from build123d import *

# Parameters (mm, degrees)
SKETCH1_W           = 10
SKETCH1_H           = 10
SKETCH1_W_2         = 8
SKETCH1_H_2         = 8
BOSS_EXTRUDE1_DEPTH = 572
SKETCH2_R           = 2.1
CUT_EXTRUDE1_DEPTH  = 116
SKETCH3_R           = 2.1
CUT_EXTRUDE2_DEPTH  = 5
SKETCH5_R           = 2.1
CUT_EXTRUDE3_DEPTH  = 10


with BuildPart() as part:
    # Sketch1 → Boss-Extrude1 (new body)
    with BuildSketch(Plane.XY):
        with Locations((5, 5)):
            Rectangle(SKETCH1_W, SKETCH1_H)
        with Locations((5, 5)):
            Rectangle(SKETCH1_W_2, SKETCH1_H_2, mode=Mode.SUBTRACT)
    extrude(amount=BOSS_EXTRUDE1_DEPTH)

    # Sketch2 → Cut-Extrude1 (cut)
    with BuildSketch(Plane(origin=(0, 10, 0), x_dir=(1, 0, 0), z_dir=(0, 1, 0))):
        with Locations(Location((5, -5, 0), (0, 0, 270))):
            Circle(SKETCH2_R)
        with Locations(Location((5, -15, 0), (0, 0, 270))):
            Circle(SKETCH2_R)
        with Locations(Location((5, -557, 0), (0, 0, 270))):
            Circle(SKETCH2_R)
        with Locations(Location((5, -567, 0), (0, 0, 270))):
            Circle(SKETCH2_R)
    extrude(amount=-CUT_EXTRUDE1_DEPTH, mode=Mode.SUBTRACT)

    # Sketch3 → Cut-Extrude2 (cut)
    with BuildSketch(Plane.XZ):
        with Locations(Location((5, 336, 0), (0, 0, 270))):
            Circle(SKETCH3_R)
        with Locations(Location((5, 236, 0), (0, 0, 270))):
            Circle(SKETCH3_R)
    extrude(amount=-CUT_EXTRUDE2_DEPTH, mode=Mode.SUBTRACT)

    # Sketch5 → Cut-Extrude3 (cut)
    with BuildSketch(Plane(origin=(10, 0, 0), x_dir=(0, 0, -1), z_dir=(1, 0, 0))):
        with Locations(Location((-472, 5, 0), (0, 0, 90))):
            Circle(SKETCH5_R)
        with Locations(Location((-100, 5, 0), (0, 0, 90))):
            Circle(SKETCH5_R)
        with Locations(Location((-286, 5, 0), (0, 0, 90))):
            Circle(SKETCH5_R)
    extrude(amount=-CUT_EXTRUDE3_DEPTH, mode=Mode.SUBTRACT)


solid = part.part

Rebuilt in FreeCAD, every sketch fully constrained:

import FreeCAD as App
import Part
import Sketcher

V = App.Vector


def add_polygon(sketch, points):
    """Adds a closed chain of lines whose ends are joined by coincident constraints."""
    first, n = sketch.GeometryCount, len(points)
    for a, b in zip(points, points[1:] + points[:1]):
        sketch.addGeometry(Part.LineSegment(App.Vector(*a, 0), App.Vector(*b, 0)), False)
    for i in range(n):
        sketch.addConstraint(Sketcher.Constraint("Coincident", first + i, 2, first + (i + 1) % n, 1))

doc = App.newDocument("Part")
params = doc.addObject("Spreadsheet::Sheet", "Params")
for row, (alias, value) in enumerate([
    ("sketch1_width", "10 mm"),
    ("sketch1_width2", "8 mm"),
    ("pad1_length", "572 mm"),
    ("sketch2_diameter", "4.2 mm"),
    ("pocket1_length", "116 mm"),
    ("sketch3_diameter", "4.2 mm"),
    ("pocket2_length", "5 mm"),
    ("sketch4_diameter", "4.2 mm"),
    ("pocket3_length", "10 mm"),
], start=1):
    params.set(f"A{row}", alias)
    params.set(f"B{row}", "=" + value)
    params.setAlias(f"B{row}", alias)

body = doc.addObject("PartDesign::Body", "Body")

# Sketch on XY plane
sketch1 = doc.addObject("Sketcher::SketchObject", "Sketch")
body.addObject(sketch1)
sketch1.AttachmentSupport = (doc.XY_Plane, [""])
sketch1.MapMode = "FlatFace"
add_polygon(sketch1, [(0, 10), (0, 0), (10, 0), (10, 10)])  # lines 0-3
add_polygon(sketch1, [(9, 1), (1, 1), (1, 9), (9, 9)])  # lines 4-7
sketch1.addConstraint([
    Sketcher.Constraint("Vertical", 0),
    Sketcher.Constraint("Horizontal", 1),
    Sketcher.Constraint("Vertical", 2),
    Sketcher.Constraint("Horizontal", 3),
    Sketcher.Constraint("Horizontal", 4),
    Sketcher.Constraint("Vertical", 5),
    Sketcher.Constraint("Horizontal", 6),
    Sketcher.Constraint("Vertical", 7),
    Sketcher.Constraint("Coincident", 0, 2, -1, 1),
    Sketcher.Constraint("Equal", 3, 0),
    Sketcher.Constraint("Equal", 6, 5),
    Sketcher.Constraint("DistanceX", 1, 1, 1, 2, 10.0),
    Sketcher.Constraint("DistanceX", 4, 2, 4, 1, 8.0),
    Sketcher.Constraint("DistanceX", -1, 1, 4, 2, 1.0),
    Sketcher.Constraint("DistanceY", -1, 1, 4, 2, 1.0),
])
sketch1.setExpression("Constraints[19]", "Params.sketch1_width")
sketch1.setExpression("Constraints[20]", "Params.sketch1_width2")
pad1 = doc.addObject("PartDesign::Pad", "Pad")
body.addObject(pad1)
pad1.Profile = sketch1
pad1.setExpression("Length", "Params.pad1_length")

# Sketch on XZ plane
sketch2 = doc.addObject("Sketcher::SketchObject", "Sketch001")
body.addObject(sketch2)
sketch2.AttachmentSupport = (doc.XZ_Plane, [""])
sketch2.MapMode = "FlatFace"
sketch2.AttachmentOffset = App.Placement(V(0, 0, -10), App.Rotation())
sketch2.addGeometry([
    Part.Circle(V(5, 5, 0), V(0, 0, 1), 2.1),
    Part.Circle(V(5, 15, 0), V(0, 0, 1), 2.1),
    Part.Circle(V(5, 557, 0), V(0, 0, 1), 2.1),
    Part.Circle(V(5, 567, 0), V(0, 0, 1), 2.1),
], False)
sketch2.addConstraint([
    Sketcher.Constraint("Equal", 0, 1),
    Sketcher.Constraint("Equal", 1, 2),
    Sketcher.Constraint("Equal", 2, 3),
    Sketcher.Constraint("Vertical", 0, 3, 1, 3),
    Sketcher.Constraint("Vertical", 1, 3, 2, 3),
    Sketcher.Constraint("Vertical", 2, 3, 3, 3),
    Sketcher.Constraint("Diameter", 0, 4.2),
    Sketcher.Constraint("DistanceX", -1, 1, 0, 3, 5.0),
    Sketcher.Constraint("DistanceY", -1, 1, 0, 3, 5.0),
    Sketcher.Constraint("DistanceY", -1, 1, 1, 3, 15.0),
    Sketcher.Constraint("DistanceY", -1, 1, 2, 3, 557.0),
    Sketcher.Constraint("DistanceY", -1, 1, 3, 3, 567.0),
])
sketch2.setExpression("Constraints[6]", "Params.sketch2_diameter")
pocket1 = doc.addObject("PartDesign::Pocket", "Pocket")
body.addObject(pocket1)
pocket1.Profile = sketch2
pocket1.setExpression("Length", "Params.pocket1_length")
pocket1.Reversed = True

# Sketch on XZ plane
sketch3 = doc.addObject("Sketcher::SketchObject", "Sketch002")
body.addObject(sketch3)
sketch3.AttachmentSupport = (doc.XZ_Plane, [""])
sketch3.MapMode = "FlatFace"
sketch3.addGeometry([
    Part.Circle(V(5, 336, 0), V(0, 0, 1), 2.1),
    Part.Circle(V(5, 236, 0), V(0, 0, 1), 2.1),
], False)
sketch3.addConstraint([
    Sketcher.Constraint("Equal", 0, 1),
    Sketcher.Constraint("Vertical", 0, 3, 1, 3),
    Sketcher.Constraint("Diameter", 0, 4.2),
    Sketcher.Constraint("DistanceX", -1, 1, 0, 3, 5.0),
    Sketcher.Constraint("DistanceY", -1, 1, 0, 3, 336.0),
    Sketcher.Constraint("DistanceY", -1, 1, 1, 3, 236.0),
])
sketch3.setExpression("Constraints[2]", "Params.sketch3_diameter")
pocket2 = doc.addObject("PartDesign::Pocket", "Pocket001")
body.addObject(pocket2)
pocket2.Profile = sketch3
pocket2.setExpression("Length", "Params.pocket2_length")

# Sketch on YZ plane
sketch4 = doc.addObject("Sketcher::SketchObject", "Sketch003")
body.addObject(sketch4)
sketch4.AttachmentSupport = (doc.YZ_Plane, [""])
sketch4.MapMode = "FlatFace"
sketch4.AttachmentOffset = App.Placement(V(0, 0, 10), App.Rotation())
sketch4.addGeometry([
    Part.Circle(V(5, 472, 0), V(0, 0, 1), 2.1),
    Part.Circle(V(5, 100, 0), V(0, 0, 1), 2.1),
    Part.Circle(V(5, 286, 0), V(0, 0, 1), 2.1),
], False)
sketch4.addConstraint([
    Sketcher.Constraint("Equal", 0, 1),
    Sketcher.Constraint("Equal", 1, 2),
    Sketcher.Constraint("Vertical", 0, 3, 1, 3),
    Sketcher.Constraint("Vertical", 1, 3, 2, 3),
    Sketcher.Constraint("Diameter", 0, 4.2),
    Sketcher.Constraint("DistanceX", -1, 1, 0, 3, 5.0),
    Sketcher.Constraint("DistanceY", -1, 1, 0, 3, 472.0),
    Sketcher.Constraint("DistanceY", -1, 1, 1, 3, 100.0),
    Sketcher.Constraint("DistanceY", -1, 1, 2, 3, 286.0),
])
sketch4.setExpression("Constraints[4]", "Params.sketch4_diameter")
pocket3 = doc.addObject("PartDesign::Pocket", "Pocket002")
body.addObject(pocket3)
pocket3.Profile = sketch4
pocket3.setExpression("Length", "Params.pocket3_length")

doc.recompute()
